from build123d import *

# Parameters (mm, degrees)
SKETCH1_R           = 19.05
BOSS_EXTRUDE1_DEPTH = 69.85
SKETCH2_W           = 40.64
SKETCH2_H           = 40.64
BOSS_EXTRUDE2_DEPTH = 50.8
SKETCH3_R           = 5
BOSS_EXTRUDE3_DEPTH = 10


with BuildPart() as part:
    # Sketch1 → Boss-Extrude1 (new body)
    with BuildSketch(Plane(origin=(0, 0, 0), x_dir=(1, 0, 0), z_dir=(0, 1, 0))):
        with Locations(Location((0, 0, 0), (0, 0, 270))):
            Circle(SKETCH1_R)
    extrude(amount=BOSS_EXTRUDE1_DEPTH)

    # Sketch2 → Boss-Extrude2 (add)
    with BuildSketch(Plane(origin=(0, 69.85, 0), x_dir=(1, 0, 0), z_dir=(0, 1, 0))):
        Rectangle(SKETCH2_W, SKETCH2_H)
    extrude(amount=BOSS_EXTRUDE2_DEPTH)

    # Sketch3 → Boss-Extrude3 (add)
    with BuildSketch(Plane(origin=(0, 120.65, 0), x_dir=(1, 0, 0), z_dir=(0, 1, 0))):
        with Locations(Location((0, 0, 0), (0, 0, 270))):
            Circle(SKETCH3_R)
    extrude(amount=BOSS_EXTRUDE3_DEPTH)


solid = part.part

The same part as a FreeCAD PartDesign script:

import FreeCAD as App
import Part
import Sketcher
from FreeCAD import Vector
Q = App.Units.Quantity


def add_polygon(sketch, points):
    """Adds a closed chain of lines whose ends are joined by coincident constraints."""
    first, n = sketch.GeometryCount, len(points)
    for a, b in zip(points, points[1:] + points[:1]):
        sketch.addGeometry(Part.LineSegment(App.Vector(*a, 0), App.Vector(*b, 0)), False)
    for i in range(n):
        sketch.addConstraint(Sketcher.Constraint("Coincident", first + i, 2, first + (i + 1) % n, 1))

doc = App.newDocument("Part")
body = doc.addObject("PartDesign::Body", "Body")

sketch1 = body.newObject("Sketcher::SketchObject", "Sketch")
sketch1.AttachmentSupport = (doc.getObject("XZ_Plane"), [""])
sketch1.MapMode = "FlatFace"
sketch1.addGeometry(Part.Circle(Vector(0, 0, 0), Vector(0, 0, 1), 19), False)
sketch1.addConstraint([
    Sketcher.Constraint("Coincident", 0, 3, -1, 1),
    Sketcher.Constraint("Diameter", 0, Q("1.5 in")),
])
pad1 = body.newObject("PartDesign::Pad", "Pad")
pad1.Profile = sketch1
pad1.Length = Q("2.75 in")
pad1.Reversed = True

sketch2 = body.newObject("Sketcher::SketchObject", "Sketch001")
sketch2.AttachmentSupport = (doc.getObject("XZ_Plane"), [""])
sketch2.MapMode = "FlatFace"
sketch2.AttachmentOffset = App.Placement(Vector(0, 0, -2.75 * 25.4), App.Rotation())
add_polygon(sketch2, [(-20, -20), (-20, 20), (20, 20), (20, -20)])
sketch2.addConstraint([
    Sketcher.Constraint("Vertical", 0),
    Sketcher.Constraint("Horizontal", 1),
    Sketcher.Constraint("Vertical", 2),
    Sketcher.Constraint("Horizontal", 3),
    Sketcher.Constraint("Symmetric", 0, 2, 2, 2, -1, 1),
    Sketcher.Constraint("Equal", 3, 0),
    Sketcher.Constraint("DistanceX", 1, 1, 1, 2, Q("1.6 in")),
])
pad2 = body.newObject("PartDesign::Pad", "Pad001")
pad2.Profile = sketch2
pad2.Length = Q("2 in")
pad2.Reversed = True

sketch3 = body.newObject("Sketcher::SketchObject", "Sketch002")
sketch3.AttachmentSupport = (doc.getObject("XZ_Plane"), [""])
sketch3.MapMode = "FlatFace"
sketch3.AttachmentOffset = App.Placement(Vector(0, 0, -4.75 * 25.4), App.Rotation())
sketch3.addGeometry(Part.Circle(Vector(0, 0, 0), Vector(0, 0, 1), 5), False)
sketch3.addConstraint([
    Sketcher.Constraint("Coincident", 0, 3, -1, 1),
    Sketcher.Constraint("Diameter", 0, Q("10 mm")),
])
pad3 = body.newObject("PartDesign::Pad", "Pad002")
pad3.Profile = sketch3
pad3.Length = 10
pad3.Reversed = True

doc.recompute()
